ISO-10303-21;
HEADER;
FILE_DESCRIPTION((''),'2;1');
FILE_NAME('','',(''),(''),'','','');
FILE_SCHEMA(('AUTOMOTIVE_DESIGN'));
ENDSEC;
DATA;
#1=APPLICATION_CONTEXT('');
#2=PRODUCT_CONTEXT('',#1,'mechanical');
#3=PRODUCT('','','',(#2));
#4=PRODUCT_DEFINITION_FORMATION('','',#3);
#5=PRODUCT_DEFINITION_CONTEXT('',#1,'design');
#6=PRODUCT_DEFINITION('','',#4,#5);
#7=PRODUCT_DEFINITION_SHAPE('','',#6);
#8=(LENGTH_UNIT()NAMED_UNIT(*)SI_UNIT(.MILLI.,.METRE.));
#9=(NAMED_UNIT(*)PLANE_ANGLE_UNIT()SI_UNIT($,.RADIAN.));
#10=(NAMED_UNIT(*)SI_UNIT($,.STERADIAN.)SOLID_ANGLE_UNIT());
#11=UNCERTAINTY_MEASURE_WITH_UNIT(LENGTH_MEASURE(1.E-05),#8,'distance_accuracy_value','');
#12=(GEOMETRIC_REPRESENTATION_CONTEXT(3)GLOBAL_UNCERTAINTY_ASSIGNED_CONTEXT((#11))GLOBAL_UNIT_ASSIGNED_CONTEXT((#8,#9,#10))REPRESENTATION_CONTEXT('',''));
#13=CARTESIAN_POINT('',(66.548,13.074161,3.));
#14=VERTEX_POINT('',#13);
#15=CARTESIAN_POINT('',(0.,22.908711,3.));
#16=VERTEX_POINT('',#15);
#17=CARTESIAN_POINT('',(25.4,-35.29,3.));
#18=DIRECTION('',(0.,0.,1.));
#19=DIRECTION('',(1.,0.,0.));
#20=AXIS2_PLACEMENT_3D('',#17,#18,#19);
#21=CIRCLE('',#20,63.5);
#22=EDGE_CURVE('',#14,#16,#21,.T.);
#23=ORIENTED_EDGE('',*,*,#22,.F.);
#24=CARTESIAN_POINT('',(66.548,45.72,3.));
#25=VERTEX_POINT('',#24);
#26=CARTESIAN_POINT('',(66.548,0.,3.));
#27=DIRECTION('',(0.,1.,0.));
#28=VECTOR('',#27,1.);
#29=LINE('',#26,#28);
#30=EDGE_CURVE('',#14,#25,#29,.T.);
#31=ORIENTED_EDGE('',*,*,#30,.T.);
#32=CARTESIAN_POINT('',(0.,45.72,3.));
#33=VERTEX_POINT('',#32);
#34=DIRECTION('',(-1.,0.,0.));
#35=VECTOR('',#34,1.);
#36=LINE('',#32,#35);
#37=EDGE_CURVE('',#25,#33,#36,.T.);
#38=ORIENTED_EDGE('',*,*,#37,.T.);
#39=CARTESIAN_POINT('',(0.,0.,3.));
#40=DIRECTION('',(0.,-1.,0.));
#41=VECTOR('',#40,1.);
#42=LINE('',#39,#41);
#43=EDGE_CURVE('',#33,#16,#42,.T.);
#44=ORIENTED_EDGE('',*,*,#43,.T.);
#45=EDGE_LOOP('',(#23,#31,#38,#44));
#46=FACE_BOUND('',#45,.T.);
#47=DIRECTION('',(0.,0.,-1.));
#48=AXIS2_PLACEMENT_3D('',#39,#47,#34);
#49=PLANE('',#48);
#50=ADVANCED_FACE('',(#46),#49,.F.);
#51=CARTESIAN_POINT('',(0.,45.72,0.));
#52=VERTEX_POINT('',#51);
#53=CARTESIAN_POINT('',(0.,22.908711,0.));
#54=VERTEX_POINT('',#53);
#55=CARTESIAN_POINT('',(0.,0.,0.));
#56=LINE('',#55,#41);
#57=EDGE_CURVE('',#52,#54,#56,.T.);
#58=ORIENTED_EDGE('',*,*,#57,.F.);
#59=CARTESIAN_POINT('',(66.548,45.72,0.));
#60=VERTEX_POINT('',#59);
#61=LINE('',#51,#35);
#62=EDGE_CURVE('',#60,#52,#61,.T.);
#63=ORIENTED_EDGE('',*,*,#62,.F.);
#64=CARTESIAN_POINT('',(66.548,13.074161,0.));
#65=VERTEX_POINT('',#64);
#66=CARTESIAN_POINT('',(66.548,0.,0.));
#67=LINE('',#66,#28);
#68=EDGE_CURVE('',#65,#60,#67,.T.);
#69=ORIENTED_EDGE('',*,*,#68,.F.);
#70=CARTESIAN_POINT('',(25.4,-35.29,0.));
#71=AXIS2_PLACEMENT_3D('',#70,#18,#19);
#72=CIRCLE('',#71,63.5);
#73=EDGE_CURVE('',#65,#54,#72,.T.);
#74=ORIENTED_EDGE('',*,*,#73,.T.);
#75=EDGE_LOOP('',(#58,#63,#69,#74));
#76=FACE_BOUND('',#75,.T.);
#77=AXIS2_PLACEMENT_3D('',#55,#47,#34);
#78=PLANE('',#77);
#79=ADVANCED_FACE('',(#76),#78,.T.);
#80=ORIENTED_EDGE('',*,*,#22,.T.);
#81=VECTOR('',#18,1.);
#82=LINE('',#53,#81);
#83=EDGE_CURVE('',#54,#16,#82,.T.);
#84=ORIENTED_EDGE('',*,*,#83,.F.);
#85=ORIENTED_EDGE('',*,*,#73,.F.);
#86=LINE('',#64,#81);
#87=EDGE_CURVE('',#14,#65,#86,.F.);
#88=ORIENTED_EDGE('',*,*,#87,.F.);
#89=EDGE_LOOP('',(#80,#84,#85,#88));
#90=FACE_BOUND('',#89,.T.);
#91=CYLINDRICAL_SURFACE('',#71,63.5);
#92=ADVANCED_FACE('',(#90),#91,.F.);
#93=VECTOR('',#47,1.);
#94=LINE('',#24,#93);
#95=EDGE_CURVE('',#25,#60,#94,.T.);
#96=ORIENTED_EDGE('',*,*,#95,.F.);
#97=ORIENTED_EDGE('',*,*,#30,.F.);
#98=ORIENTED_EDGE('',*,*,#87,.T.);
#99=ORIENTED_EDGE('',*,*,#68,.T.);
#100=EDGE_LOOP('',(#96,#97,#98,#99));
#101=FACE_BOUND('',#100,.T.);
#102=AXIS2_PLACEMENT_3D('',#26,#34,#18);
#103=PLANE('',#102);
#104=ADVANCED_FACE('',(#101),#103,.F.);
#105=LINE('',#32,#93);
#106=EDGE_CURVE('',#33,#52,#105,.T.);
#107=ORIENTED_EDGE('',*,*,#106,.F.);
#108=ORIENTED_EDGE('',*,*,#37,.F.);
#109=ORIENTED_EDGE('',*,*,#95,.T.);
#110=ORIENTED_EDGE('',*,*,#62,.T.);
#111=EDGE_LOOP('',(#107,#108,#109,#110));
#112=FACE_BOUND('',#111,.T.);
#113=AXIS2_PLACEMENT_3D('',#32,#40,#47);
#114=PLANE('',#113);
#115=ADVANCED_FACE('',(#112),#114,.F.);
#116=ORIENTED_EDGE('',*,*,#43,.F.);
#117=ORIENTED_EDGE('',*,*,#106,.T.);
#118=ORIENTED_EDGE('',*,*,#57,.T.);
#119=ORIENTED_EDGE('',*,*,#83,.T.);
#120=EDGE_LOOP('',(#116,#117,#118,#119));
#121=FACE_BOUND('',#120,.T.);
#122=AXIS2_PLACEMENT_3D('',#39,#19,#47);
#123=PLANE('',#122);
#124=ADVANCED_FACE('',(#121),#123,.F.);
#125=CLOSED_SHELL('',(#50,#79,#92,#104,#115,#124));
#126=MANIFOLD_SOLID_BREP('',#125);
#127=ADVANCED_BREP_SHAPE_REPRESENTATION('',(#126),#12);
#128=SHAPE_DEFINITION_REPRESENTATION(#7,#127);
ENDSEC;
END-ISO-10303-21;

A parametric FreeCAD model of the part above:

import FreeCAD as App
import Part
import Sketcher
Q = App.Units.Quantity

doc = App.newDocument("Part")
body = doc.addObject("PartDesign::Body", "Body")

# Sketch on XY plane
sketch1 = body.newObject("Sketcher::SketchObject", "Sketch")
sketch1.AttachmentSupport = (doc.getObject("XY_Plane"), [""])
sketch1.MapMode = "FlatFace"
sketch1.addGeometry([
    Part.LineSegment(App.Vector(0, 46, 0), App.Vector(0, 0, 0)),
    Part.LineSegment(App.Vector(0, 0, 0), App.Vector(67, 0, 0)),
    Part.LineSegment(App.Vector(67, 0, 0), App.Vector(67, 46, 0)),
    Part.LineSegment(App.Vector(67, 46, 0), App.Vector(0, 46, 0)),
], False)
sketch1.addConstraint([
    Sketcher.Constraint("Coincident", 0, 2, 1, 1),
    Sketcher.Constraint("Coincident", 1, 2, 2, 1),
    Sketcher.Constraint("Coincident", 2, 2, 3, 1),
    Sketcher.Constraint("Coincident", 3, 2, 0, 1),
    Sketcher.Constraint("Vertical", 0),
    Sketcher.Constraint("Horizontal", 1),
    Sketcher.Constraint("Vertical", 2),
    Sketcher.Constraint("Horizontal", 3),
    Sketcher.Constraint("Coincident", 0, 2, -1, 1),
    Sketcher.Constraint("DistanceY", 0, 2, 0, 1, Q("1.8 in")),
    Sketcher.Constraint("DistanceX", 1, 1, 1, 2, Q("2.62 in")),
])
pad1 = body.newObject("PartDesign::Pad", "Pad")
pad1.Profile = sketch1
pad1.Length = 3

# Sketch on XY plane
sketch2 = body.newObject("Sketcher::SketchObject", "Sketch001")
sketch2.AttachmentSupport = (doc.getObject("XY_Plane"), [""])
sketch2.MapMode = "FlatFace"
sketch2.AttachmentOffset = App.Placement(App.Vector(0, 0, 3), App.Rotation())
sketch2.addGeometry(Part.Circle(App.Vector(25, -35, 0), App.Vector(0, 0, 1), 64), False)
sketch2.addConstraint([
    Sketcher.Constraint("Diameter", 0, Q("5 in")),
    Sketcher.Constraint("DistanceX", -1, 1, 0, 3, Q("1 in")),
    Sketcher.Constraint("DistanceY", 0, 3, -1, 1, 35.29),
])
pocket1 = body.newObject("PartDesign::Pocket", "Pocket")
pocket1.Profile = sketch2
pocket1.Type = "ThroughAll"

doc.recompute()
